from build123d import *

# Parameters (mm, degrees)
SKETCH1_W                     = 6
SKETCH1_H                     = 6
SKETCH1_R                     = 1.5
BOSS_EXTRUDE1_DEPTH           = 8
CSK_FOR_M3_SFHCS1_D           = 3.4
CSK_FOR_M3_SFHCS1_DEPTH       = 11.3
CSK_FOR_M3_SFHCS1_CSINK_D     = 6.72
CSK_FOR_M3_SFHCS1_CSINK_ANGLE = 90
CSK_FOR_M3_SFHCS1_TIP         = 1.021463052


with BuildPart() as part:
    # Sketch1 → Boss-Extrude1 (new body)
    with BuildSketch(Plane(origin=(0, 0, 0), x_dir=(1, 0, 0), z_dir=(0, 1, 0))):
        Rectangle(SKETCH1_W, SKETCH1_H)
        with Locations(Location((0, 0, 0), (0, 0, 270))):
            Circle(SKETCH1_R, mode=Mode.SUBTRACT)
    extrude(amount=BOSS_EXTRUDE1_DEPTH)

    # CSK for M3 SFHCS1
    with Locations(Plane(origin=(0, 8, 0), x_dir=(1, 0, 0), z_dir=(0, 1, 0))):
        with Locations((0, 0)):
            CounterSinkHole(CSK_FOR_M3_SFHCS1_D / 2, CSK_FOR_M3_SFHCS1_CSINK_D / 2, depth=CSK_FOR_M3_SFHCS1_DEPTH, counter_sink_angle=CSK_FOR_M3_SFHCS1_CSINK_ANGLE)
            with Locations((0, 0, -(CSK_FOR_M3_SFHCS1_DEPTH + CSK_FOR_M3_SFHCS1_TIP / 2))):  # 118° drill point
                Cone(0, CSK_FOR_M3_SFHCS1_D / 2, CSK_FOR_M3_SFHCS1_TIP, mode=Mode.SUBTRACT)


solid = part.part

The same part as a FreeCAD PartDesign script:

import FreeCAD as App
import Part
import Sketcher

V = App.Vector
Q = App.Units.Quantity

doc = App.newDocument("Part")
body = doc.addObject("PartDesign::Body", "Body")

# Sketch on XZ plane
sketch1 = body.newObject("Sketcher::SketchObject", "Sketch")
sketch1.AttachmentSupport = (doc.getObject("XZ_Plane"), [""])
sketch1.MapMode = "FlatFace"
sketch1.addGeometry(Part.LineSegment(V(-3, -3, 0), V(-3, 3, 0)), False)
sketch1.addGeometry(Part.LineSegment(V(-3, 3, 0), V(3, 3, 0)), False)
sketch1.addGeometry(Part.LineSegment(V(3, 3, 0), V(3, -3, 0)), False)
sketch1.addGeometry(Part.LineSegment(V(3, -3, 0), V(-3, -3, 0)), False)
sketch1.addGeometry(Part.Circle(V(0, 0, 0), V(0, 0, 1), 1.5), False)
sketch1.addConstraint(Sketcher.Constraint("Coincident", 0, 2, 1, 1))
sketch1.addConstraint(Sketcher.Constraint("Coincident", 1, 2, 2, 1))
sketch1.addConstraint(Sketcher.Constraint("Coincident", 2, 2, 3, 1))
sketch1.addConstraint(Sketcher.Constraint("Coincident", 3, 2, 0, 1))
sketch1.addConstraint(Sketcher.Constraint("Vertical", 0))
sketch1.addConstraint(Sketcher.Constraint("Horizontal", 1))
sketch1.addConstraint(Sketcher.Constraint("Vertical", 2))
sketch1.addConstraint(Sketcher.Constraint("Horizontal", 3))
sketch1.addConstraint(Sketcher.Constraint("Coincident", 4, 3, -1, 1))
sketch1.addConstraint(Sketcher.Constraint("Symmetric", 0, 2, 2, 2, -1, 1))
sketch1.addConstraint(Sketcher.Constraint("Equal", 3, 0))
sketch1.addConstraint(Sketcher.Constraint("Diameter", 4, Q("3 mm")))
sketch1.addConstraint(Sketcher.Constraint("DistanceX", 1, 1, 1, 2, Q("6 mm")))
pad1 = body.newObject("PartDesign::Pad", "Pad")
pad1.Profile = sketch1
pad1.Length = 8
pad1.Reversed = True

# Sketch on XZ plane
sketch2 = body.newObject("Sketcher::SketchObject", "Sketch001")
sketch2.AttachmentSupport = (doc.getObject("XZ_Plane"), [""])
sketch2.MapMode = "FlatFace"
sketch2.AttachmentOffset = App.Placement(V(0, 0, -8), App.Rotation())
sketch2.addGeometry(Part.Circle(V(0, 0, 0), V(0, 0, 1), 1.7), False)
sketch2.addConstraint(Sketcher.Constraint("Coincident", 0, 3, -1, 1))
sketch2.addConstraint(Sketcher.Constraint("Diameter", 0, Q("3.4 mm")))
doc.recompute()
hole = body.newObject("PartDesign::Hole", "Hole")
hole.Profile = sketch2
hole.ThreadType = "None"
hole.Diameter = 3.4
hole.DepthType = "Dimension"
hole.Depth = 11.3
hole.DrillPoint = "Angled"
hole.DrillPointAngle = 118
hole.HoleCutType = "Countersink"
hole.HoleCutDiameter = 6.72
hole.HoleCutCountersinkAngle = 90
hole.Reversed = True

doc.recompute()
